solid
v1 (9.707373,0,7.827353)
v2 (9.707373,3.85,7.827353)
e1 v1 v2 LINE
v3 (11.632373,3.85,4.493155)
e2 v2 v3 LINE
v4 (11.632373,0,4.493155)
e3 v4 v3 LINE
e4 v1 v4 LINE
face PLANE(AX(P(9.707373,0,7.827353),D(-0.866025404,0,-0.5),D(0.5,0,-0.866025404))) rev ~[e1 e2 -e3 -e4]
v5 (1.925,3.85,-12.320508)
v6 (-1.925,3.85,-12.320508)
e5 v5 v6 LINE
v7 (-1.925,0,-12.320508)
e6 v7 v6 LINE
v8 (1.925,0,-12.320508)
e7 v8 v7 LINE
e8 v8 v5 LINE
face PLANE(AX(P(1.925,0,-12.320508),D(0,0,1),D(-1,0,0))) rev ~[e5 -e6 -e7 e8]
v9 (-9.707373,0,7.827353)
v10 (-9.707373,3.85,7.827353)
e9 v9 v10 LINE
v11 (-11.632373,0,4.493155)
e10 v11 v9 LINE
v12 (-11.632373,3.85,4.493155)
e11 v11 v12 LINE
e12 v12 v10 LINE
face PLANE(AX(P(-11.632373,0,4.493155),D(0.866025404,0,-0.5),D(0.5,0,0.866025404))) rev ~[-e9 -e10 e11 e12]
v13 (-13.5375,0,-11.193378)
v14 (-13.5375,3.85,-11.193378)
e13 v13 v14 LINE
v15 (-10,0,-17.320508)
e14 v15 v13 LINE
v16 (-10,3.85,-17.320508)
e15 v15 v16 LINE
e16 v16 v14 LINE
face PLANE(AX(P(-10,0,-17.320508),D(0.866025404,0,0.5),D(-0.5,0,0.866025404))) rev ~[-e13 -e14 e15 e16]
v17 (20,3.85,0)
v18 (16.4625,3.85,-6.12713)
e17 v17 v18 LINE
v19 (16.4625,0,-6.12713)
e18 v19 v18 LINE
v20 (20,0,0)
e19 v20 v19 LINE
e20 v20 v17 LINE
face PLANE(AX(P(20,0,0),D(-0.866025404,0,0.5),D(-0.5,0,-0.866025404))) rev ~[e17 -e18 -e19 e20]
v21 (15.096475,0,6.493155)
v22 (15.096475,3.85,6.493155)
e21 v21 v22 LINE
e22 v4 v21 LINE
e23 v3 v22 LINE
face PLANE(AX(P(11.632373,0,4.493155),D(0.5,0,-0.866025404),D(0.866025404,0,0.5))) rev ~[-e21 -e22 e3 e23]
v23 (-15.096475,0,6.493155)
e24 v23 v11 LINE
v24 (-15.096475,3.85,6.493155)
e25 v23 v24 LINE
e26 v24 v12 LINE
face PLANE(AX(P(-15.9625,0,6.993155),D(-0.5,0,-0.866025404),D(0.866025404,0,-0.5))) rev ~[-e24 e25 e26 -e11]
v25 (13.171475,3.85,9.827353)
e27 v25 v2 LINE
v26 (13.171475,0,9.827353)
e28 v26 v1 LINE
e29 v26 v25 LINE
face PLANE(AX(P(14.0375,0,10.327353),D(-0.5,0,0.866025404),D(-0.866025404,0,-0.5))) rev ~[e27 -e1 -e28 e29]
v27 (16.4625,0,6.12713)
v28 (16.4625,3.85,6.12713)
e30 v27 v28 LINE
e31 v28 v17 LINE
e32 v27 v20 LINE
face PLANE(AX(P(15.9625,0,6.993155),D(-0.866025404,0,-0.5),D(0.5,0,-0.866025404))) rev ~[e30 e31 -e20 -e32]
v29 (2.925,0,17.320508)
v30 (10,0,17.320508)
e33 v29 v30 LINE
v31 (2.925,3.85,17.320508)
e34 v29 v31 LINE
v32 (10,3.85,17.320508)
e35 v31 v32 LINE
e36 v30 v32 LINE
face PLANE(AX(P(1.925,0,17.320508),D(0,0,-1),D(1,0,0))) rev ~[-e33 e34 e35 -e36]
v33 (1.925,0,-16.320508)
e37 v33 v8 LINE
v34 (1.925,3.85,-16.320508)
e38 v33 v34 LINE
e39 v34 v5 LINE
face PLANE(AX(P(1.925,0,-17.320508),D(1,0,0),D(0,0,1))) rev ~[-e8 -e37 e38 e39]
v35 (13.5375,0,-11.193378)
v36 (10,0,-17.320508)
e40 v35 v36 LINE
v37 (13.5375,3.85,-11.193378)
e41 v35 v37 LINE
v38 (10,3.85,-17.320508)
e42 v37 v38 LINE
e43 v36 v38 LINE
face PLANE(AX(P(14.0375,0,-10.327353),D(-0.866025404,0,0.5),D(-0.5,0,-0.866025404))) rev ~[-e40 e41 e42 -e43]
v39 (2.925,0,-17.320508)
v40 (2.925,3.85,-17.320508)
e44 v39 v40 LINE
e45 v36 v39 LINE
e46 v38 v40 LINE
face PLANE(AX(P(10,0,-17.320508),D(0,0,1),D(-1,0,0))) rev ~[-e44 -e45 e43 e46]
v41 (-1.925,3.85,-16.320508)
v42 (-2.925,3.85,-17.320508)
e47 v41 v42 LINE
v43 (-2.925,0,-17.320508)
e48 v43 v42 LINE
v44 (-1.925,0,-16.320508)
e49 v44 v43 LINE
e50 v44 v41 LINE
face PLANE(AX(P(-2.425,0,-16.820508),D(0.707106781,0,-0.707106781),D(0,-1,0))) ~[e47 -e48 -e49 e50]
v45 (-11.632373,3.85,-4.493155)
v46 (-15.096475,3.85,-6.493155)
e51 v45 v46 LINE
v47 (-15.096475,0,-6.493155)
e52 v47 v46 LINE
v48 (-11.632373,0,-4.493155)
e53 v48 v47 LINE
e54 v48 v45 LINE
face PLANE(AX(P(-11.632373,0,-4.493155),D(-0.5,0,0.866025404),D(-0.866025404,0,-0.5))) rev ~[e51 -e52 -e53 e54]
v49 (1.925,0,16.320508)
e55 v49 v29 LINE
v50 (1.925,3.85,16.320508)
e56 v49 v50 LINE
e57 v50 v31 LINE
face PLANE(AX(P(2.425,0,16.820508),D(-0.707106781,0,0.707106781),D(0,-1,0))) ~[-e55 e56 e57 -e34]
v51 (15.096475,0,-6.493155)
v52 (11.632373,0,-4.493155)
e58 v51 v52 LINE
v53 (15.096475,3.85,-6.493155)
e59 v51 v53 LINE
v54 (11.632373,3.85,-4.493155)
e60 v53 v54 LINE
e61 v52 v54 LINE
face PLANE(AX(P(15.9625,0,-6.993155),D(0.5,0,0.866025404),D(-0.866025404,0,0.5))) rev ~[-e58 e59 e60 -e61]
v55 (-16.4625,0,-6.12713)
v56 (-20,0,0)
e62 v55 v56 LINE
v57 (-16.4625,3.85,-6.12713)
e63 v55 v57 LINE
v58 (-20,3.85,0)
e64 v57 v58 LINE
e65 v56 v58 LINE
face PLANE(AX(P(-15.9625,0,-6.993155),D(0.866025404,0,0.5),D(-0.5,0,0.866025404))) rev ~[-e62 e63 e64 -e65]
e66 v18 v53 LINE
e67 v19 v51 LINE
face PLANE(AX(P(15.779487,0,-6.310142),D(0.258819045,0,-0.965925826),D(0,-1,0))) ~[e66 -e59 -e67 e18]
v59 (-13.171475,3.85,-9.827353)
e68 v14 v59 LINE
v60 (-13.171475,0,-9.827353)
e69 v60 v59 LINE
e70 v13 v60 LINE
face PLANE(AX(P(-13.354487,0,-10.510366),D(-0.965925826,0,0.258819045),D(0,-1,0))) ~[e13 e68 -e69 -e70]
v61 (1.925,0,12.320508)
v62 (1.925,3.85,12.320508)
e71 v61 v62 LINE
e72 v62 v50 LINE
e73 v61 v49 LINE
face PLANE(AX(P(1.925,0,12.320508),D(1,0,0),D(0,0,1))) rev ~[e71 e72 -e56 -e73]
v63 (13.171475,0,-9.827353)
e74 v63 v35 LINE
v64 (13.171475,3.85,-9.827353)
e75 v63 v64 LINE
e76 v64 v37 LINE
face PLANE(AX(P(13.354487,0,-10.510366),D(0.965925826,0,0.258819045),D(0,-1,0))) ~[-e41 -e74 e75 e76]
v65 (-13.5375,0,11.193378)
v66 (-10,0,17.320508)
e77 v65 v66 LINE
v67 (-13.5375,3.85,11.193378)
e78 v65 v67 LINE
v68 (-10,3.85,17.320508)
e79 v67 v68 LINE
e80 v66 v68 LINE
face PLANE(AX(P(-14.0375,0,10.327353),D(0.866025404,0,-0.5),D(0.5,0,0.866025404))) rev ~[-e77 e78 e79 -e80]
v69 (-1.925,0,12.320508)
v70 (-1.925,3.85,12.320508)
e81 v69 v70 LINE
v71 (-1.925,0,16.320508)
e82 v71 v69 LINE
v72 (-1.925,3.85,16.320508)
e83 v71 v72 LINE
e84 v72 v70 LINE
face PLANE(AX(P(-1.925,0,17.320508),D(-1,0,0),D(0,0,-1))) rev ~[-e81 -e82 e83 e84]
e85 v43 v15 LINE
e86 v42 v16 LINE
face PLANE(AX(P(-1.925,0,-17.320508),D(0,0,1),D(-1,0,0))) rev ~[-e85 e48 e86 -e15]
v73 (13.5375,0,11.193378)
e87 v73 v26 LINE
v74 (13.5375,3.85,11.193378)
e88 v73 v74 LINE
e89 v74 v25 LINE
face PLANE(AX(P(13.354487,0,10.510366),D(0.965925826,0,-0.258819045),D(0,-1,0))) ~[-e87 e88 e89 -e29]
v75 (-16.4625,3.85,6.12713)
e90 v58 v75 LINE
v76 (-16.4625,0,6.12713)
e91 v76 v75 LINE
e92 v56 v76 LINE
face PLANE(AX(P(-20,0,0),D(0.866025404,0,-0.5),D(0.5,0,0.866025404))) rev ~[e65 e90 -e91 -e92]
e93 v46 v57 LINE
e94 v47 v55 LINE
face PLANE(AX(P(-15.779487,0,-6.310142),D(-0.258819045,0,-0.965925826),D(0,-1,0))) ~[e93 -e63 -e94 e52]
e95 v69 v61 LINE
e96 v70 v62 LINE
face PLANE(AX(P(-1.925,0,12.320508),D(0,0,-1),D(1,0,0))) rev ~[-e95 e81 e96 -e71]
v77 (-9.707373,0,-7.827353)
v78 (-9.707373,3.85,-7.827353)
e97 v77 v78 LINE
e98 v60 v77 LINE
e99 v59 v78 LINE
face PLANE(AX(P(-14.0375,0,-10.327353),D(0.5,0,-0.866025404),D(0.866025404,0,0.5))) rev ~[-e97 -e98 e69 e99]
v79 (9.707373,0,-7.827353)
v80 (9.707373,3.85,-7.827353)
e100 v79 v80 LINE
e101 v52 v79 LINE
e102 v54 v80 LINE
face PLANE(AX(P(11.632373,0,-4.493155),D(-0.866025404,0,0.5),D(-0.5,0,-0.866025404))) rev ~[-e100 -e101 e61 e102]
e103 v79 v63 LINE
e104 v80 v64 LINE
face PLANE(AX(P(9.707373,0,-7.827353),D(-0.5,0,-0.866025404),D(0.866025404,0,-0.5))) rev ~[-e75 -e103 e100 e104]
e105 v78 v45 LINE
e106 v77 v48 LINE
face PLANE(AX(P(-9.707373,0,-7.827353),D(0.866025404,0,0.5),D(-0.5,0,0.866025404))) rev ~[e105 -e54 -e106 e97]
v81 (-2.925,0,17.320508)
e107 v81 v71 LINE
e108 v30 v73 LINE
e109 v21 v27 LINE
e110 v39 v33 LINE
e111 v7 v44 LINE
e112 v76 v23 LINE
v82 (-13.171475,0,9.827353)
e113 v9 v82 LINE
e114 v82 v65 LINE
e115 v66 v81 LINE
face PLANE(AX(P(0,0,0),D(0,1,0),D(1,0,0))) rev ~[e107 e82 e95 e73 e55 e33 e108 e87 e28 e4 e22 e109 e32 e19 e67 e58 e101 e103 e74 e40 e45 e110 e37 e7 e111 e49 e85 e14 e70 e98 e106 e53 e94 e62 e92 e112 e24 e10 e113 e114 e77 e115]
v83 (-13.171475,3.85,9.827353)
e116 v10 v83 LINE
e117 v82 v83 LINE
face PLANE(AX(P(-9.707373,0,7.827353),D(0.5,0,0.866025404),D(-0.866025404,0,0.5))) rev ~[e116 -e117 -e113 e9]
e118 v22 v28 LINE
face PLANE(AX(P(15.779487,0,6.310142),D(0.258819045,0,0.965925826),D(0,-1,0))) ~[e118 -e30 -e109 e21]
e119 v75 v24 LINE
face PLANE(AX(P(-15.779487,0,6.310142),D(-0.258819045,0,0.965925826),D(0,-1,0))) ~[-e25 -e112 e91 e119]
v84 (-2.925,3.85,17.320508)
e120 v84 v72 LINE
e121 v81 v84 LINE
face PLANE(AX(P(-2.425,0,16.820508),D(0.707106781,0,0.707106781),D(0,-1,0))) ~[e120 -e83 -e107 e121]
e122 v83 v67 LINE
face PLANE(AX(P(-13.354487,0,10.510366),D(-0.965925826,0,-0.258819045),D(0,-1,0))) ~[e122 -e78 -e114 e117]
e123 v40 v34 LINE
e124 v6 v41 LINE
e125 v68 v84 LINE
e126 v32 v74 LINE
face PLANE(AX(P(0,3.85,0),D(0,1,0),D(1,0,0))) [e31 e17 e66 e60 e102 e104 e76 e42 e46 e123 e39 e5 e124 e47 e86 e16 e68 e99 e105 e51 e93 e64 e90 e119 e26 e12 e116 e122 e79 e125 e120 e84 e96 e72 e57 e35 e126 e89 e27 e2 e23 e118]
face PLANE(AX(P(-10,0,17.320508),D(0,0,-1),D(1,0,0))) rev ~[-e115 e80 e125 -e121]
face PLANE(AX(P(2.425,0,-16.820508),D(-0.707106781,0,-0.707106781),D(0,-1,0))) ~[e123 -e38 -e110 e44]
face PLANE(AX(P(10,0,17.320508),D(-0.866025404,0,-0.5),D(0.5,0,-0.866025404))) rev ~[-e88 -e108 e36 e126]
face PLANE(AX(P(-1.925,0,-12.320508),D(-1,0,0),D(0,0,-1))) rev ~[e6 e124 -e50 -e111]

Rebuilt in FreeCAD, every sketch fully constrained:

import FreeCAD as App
import Part
import Sketcher

V = App.Vector
Q = App.Units.Quantity


def edges_at(feature, points):
    """Names of the edges that pass closest to the given points."""
    edges = feature.Shape.Edges
    near = lambda p: min(range(len(edges)), key=lambda i: edges[i].distToShape(Part.Vertex(*p))[0])
    return sorted({f"Edge{near(p) + 1}" for p in points})


def add_polygon(sketch, points):
    """Adds a closed chain of lines whose ends are joined by coincident constraints."""
    first, n = sketch.GeometryCount, len(points)
    for a, b in zip(points, points[1:] + points[:1]):
        sketch.addGeometry(Part.LineSegment(App.Vector(*a, 0), App.Vector(*b, 0)), False)
    for i in range(n):
        sketch.addConstraint(Sketcher.Constraint("Coincident", first + i, 2, first + (i + 1) % n, 1))

doc = App.newDocument("Part")
body = doc.addObject("PartDesign::Body", "Body")

# Sketch on XZ plane
sketch1 = body.newObject("Sketcher::SketchObject", "Sketch")
sketch1.AttachmentSupport = (doc.getObject("XZ_Plane"), [""])
sketch1.MapMode = "FlatFace"
add_polygon(sketch1, [(20, 0), (16, -7), (11.6, -4.5), (9.7, -7.8), (14, -10.3), (10, -17.3), (1.9, -17.3), (1.9, -12.3), (-1.9, -12.3), (-1.9, -17.3), (-10, -17.3), (-14, -10.3), (-9.7, -7.8), (-11.6, -4.5), (-16, -7), (-20, 0), (-16, 7), (-11.6, 4.5), (-9.7, 7.8), (-14, 10.3), (-10, 17.3), (-1.9, 17.3), (-1.9, 12.3), (1.9, 12.3), (1.9, 17.3), (10, 17.3), (14, 10.3), (9.7, 7.8), (11.6, 4.5), (16, 7)])  # lines 0-29
sketch1.addConstraint(Sketcher.Constraint("Horizontal", 5))
sketch1.addConstraint(Sketcher.Constraint("Vertical", 6))
sketch1.addConstraint(Sketcher.Constraint("Horizontal", 7))
sketch1.addConstraint(Sketcher.Constraint("Vertical", 8))
sketch1.addConstraint(Sketcher.Constraint("Horizontal", 9))
sketch1.addConstraint(Sketcher.Constraint("Horizontal", 20))
sketch1.addConstraint(Sketcher.Constraint("Vertical", 21))
sketch1.addConstraint(Sketcher.Constraint("Horizontal", 22))
sketch1.addConstraint(Sketcher.Constraint("Vertical", 23))
sketch1.addConstraint(Sketcher.Constraint("Horizontal", 24))
sketch1.addConstraint(Sketcher.Constraint("Symmetric", 0, 2, 15, 2, -1, 1))
sketch1.addConstraint(Sketcher.Constraint("Symmetric", 1, 2, 16, 2, -1, 1))
sketch1.addConstraint(Sketcher.Constraint("Symmetric", 2, 2, 17, 2, -1, 1))
sketch1.addConstraint(Sketcher.Constraint("Symmetric", 3, 2, 18, 2, -1, 1))
sketch1.addConstraint(Sketcher.Constraint("Symmetric", 4, 2, 19, 2, -1, 1))
sketch1.addConstraint(Sketcher.Constraint("Symmetric", 6, 2, 21, 2, -1, 1))
sketch1.addConstraint(Sketcher.Constraint("Symmetric", 8, 2, 23, 2, -1, 1))
sketch1.addConstraint(Sketcher.Constraint("Symmetric", 10, 2, 25, 2, -1, 1))
sketch1.addConstraint(Sketcher.Constraint("Symmetric", 11, 2, 26, 2, -1, 1))
sketch1.addConstraint(Sketcher.Constraint("Symmetric", 12, 2, 27, 2, -1, 1))
sketch1.addConstraint(Sketcher.Constraint("Symmetric", 13, 2, 28, 2, -1, 1))
sketch1.addConstraint(Sketcher.Constraint("Symmetric", 14, 2, 29, 2, -1, 1))
sketch1.addConstraint(Sketcher.Constraint("Symmetric", 5, 2, 8, 2, -2))
sketch1.addConstraint(Sketcher.Constraint("Symmetric", 3, 2, 10, 2, -2))
sketch1.addConstraint(Sketcher.Constraint("Symmetric", 2, 2, 11, 2, -2))
sketch1.addConstraint(Sketcher.Constraint("Symmetric", 1, 2, 12, 2, -2))
sketch1.addConstraint(Sketcher.Constraint("Symmetric", 0, 2, 13, 2, -2))
sketch1.addConstraint(Sketcher.Constraint("PointOnObject", 14, 2, -1))
sketch1.addConstraint(Sketcher.Constraint("Perpendicular", 0, 1))
sketch1.addConstraint(Sketcher.Constraint("Perpendicular", 1, 2))
sketch1.addConstraint(Sketcher.Constraint("Perpendicular", 2, 3))
sketch1.addConstraint(Sketcher.Constraint("Perpendicular", 3, 4))
sketch1.addConstraint(Sketcher.Constraint("Perpendicular", 10, 11))
sketch1.addConstraint(Sketcher.Constraint("Parallel", 14, 25))
sketch1.addConstraint(Sketcher.Constraint("Equal", 1, 3))
sketch1.addConstraint(Sketcher.Constraint("Equal", 0, 4))
sketch1.addConstraint(Sketcher.Constraint("DistanceY", 6, 1, 6, 2, 5.0))
sketch1.addConstraint(Sketcher.Constraint("Angle", 0, Q("-120 deg")))
sketch1.addConstraint(Sketcher.Constraint("Distance", 1, 5.0))
sketch1.addConstraint(Sketcher.Constraint("DistanceX", -1, 1, 4, 2, 10.0))
sketch1.addConstraint(Sketcher.Constraint("DistanceX", 14, 2, -1, 1, 20.0))
sketch1.addConstraint(Sketcher.Constraint("DistanceX", 7, 2, 7, 1, 3.85))
sketch1.addConstraint(Sketcher.Constraint("Distance", 2, 3.85))
pad1 = body.newObject("PartDesign::Pad", "Pad")
pad1.Profile = sketch1
pad1.Length = 3.85
pad1.Reversed = True
doc.recompute()

chamfer = body.newObject("PartDesign::Chamfer", "Chamfer")
chamfer.Base = (pad1, edges_at(pad1, [
    (15.963, 1.925, 6.993),
    (15.963, 1.925, -6.993),
    (14.037, 1.925, -10.327),
    (1.925, 1.925, -17.321),
    (-1.925, 1.925, -17.321),
    (-14.037, 1.925, -10.327),
    (-15.963, 1.925, -6.993),
    (-15.963, 1.925, 6.993),
    (-14.037, 1.925, 10.327),
    (-1.925, 1.925, 17.321),
    (1.925, 1.925, 17.321),
    (14.037, 1.925, 10.327),
]))
chamfer.Size = 1

doc.recompute()
